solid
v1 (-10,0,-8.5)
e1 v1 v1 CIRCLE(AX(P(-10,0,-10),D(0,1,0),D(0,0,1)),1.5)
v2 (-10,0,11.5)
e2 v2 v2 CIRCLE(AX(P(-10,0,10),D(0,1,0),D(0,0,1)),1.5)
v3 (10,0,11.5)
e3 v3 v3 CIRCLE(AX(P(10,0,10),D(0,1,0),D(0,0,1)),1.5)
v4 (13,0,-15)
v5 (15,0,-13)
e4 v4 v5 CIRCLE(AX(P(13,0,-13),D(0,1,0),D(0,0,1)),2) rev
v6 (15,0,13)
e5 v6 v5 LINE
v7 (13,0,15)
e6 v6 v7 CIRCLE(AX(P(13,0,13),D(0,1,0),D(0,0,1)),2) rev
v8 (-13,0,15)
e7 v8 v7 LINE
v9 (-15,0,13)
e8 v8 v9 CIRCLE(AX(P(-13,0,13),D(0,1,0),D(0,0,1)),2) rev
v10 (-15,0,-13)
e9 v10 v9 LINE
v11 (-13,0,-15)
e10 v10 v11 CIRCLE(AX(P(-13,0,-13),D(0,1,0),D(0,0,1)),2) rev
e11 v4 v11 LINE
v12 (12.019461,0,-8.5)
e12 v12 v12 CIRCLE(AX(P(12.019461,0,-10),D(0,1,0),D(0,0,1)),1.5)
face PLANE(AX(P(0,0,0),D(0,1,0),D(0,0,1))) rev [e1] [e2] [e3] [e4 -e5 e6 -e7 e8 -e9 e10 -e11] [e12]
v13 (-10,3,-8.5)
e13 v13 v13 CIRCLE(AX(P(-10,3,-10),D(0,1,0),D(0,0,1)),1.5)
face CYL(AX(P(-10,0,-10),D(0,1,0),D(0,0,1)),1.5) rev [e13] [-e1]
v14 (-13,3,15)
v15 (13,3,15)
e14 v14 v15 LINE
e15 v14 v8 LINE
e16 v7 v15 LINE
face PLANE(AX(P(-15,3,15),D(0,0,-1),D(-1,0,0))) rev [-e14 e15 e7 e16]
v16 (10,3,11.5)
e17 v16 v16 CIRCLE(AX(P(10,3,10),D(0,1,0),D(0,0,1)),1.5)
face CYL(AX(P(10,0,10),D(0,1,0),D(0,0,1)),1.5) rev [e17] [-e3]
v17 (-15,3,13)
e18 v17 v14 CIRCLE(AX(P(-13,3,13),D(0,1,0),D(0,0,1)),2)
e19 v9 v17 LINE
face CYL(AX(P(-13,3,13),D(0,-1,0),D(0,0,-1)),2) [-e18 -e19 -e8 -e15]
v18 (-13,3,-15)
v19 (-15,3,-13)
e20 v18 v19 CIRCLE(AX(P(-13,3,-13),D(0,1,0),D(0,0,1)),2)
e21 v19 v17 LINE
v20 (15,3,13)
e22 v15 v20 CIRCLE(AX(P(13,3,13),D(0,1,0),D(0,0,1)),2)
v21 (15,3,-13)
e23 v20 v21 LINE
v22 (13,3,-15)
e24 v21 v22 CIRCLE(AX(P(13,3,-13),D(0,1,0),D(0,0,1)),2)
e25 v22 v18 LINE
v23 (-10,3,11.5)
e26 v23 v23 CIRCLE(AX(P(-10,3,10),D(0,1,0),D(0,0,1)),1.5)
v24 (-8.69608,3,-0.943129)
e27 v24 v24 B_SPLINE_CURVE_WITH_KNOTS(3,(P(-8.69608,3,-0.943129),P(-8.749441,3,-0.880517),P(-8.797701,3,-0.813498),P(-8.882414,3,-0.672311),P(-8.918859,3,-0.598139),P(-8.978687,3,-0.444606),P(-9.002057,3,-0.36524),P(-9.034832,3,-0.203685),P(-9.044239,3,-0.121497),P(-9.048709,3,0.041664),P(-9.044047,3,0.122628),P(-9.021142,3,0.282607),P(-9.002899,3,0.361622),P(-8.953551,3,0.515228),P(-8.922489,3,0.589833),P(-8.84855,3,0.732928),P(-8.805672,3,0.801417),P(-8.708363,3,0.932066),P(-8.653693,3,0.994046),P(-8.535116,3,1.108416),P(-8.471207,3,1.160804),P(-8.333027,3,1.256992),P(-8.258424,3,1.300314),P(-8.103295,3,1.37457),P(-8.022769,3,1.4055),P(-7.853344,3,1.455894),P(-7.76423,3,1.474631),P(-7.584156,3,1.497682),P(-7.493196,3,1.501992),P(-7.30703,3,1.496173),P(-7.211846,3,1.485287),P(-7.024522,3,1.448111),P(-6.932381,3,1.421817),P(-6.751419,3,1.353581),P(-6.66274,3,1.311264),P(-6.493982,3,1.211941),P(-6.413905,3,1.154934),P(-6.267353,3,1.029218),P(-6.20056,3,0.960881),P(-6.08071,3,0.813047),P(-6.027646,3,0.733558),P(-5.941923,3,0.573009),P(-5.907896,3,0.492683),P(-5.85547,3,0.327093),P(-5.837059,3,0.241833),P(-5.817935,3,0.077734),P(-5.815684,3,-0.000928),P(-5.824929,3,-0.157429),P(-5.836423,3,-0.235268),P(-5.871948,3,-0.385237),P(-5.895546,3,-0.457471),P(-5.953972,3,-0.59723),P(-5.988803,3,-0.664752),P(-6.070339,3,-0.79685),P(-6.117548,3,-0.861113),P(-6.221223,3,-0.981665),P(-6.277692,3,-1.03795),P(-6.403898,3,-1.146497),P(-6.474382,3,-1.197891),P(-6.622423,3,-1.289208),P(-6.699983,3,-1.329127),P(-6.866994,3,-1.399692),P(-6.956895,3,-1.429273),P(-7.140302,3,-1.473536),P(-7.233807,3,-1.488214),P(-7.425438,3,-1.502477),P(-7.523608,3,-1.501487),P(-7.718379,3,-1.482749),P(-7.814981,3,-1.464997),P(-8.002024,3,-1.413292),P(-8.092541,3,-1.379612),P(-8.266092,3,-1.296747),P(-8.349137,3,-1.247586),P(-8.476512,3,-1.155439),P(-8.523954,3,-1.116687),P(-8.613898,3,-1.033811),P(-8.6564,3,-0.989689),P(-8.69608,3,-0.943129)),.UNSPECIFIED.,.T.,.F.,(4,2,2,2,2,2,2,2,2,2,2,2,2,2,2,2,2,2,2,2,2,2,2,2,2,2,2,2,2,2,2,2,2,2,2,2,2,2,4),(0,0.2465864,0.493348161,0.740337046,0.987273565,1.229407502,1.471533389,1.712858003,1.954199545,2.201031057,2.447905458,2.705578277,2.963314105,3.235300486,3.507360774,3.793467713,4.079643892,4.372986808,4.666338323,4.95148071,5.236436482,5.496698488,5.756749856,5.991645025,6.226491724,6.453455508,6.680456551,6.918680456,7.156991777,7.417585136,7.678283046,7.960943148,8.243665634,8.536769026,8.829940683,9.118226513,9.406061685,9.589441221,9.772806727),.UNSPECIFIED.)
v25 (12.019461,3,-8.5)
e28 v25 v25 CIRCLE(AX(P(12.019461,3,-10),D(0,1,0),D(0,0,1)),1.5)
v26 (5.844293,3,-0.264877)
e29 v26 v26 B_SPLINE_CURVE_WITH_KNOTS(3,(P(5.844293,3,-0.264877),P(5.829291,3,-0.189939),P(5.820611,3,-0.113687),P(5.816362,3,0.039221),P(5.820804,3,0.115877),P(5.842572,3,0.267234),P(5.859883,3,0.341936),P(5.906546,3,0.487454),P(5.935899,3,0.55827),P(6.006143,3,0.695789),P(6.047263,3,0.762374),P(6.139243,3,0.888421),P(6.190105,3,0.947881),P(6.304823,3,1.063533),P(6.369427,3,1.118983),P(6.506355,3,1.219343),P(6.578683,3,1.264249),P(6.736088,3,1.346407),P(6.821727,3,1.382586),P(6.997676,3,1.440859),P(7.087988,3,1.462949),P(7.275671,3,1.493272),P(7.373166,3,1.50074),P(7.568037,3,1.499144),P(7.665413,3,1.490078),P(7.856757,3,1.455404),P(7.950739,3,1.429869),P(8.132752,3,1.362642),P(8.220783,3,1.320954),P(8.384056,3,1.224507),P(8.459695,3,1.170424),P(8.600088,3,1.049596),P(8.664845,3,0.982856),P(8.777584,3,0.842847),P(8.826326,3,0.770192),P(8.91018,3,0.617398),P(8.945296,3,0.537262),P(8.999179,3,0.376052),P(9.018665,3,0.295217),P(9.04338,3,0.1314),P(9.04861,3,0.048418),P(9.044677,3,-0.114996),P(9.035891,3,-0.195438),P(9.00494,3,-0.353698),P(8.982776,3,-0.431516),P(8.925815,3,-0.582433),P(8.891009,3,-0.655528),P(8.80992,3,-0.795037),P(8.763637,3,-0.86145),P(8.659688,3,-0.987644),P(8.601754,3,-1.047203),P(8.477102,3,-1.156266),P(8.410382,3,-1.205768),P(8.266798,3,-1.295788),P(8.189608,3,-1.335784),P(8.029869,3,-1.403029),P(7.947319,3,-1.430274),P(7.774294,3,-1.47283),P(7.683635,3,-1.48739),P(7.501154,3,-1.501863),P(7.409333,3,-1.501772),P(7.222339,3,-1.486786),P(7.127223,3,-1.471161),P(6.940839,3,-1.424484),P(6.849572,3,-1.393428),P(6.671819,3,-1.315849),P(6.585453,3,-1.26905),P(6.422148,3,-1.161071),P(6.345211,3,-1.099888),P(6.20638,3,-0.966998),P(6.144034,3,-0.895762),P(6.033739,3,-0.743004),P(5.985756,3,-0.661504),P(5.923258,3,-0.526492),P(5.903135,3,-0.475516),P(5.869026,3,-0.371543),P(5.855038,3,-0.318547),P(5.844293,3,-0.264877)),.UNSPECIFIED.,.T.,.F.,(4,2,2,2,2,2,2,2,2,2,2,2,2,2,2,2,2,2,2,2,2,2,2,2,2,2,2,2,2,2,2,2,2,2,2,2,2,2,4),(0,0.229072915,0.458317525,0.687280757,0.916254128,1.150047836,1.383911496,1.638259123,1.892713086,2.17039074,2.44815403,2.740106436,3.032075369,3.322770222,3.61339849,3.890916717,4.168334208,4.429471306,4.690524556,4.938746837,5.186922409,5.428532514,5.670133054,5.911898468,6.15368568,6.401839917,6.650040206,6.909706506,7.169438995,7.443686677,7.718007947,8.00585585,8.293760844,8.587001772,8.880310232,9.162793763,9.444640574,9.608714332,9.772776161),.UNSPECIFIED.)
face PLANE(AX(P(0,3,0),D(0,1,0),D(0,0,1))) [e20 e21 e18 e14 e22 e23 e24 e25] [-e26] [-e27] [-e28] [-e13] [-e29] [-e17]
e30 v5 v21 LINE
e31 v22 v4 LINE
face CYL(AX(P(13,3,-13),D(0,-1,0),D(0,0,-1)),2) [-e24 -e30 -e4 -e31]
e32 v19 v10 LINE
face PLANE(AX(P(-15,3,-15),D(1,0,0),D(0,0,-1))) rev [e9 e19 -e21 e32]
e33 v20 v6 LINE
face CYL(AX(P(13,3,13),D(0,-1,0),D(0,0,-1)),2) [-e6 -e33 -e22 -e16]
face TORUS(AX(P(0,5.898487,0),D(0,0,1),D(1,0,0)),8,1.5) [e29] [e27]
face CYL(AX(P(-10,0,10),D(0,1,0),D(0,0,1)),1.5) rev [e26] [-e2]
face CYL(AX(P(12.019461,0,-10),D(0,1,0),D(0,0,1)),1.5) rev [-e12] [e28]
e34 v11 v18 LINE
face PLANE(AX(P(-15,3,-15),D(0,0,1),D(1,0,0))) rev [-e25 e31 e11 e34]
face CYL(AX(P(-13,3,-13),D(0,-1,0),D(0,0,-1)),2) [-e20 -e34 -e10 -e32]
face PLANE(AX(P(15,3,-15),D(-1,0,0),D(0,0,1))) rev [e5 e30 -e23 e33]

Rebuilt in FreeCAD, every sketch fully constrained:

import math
import FreeCAD as App
import Part
import Sketcher

V = App.Vector
Q = App.Units.Quantity


def edges_at(feature, points):
    """Names of the edges that pass closest to the given points."""
    edges = feature.Shape.Edges
    near = lambda p: min(range(len(edges)), key=lambda i: edges[i].distToShape(Part.Vertex(*p))[0])
    return sorted({f"Edge{near(p) + 1}" for p in points})

doc = App.newDocument("Part")
body = doc.addObject("PartDesign::Body", "Body")

sketch1 = body.newObject("Sketcher::SketchObject", "Sketch")
sketch1.AttachmentSupport = (doc.getObject("XZ_Plane"), [""])
sketch1.MapMode = "FlatFace"
sketch1.addGeometry([
    Part.LineSegment(V(-15, -15, 0), V(-15, 15, 0)),
    Part.LineSegment(V(-15, 15, 0), V(15, 15, 0)),
    Part.LineSegment(V(15, 15, 0), V(15, -15, 0)),
    Part.LineSegment(V(15, -15, 0), V(-15, -15, 0)),
], False)
sketch1.addConstraint([
    Sketcher.Constraint("Coincident", 0, 2, 1, 1),
    Sketcher.Constraint("Coincident", 1, 2, 2, 1),
    Sketcher.Constraint("Coincident", 2, 2, 3, 1),
    Sketcher.Constraint("Coincident", 3, 2, 0, 1),
    Sketcher.Constraint("Vertical", 0),
    Sketcher.Constraint("Horizontal", 1),
    Sketcher.Constraint("Vertical", 2),
    Sketcher.Constraint("Horizontal", 3),
    Sketcher.Constraint("Symmetric", 0, 2, 2, 2, -1, 1),
    Sketcher.Constraint("Equal", 3, 0),
    Sketcher.Constraint("DistanceX", 1, 1, 1, 2, Q("30 mm")),
])
pad1 = body.newObject("PartDesign::Pad", "Pad")
pad1.Profile = sketch1
pad1.Length = 3
pad1.Reversed = True

sketch2 = body.newObject("Sketcher::SketchObject", "Sketch001")
sketch2.Placement = App.Placement(V(6.607921, 1.389009, 0), App.Rotation(V(0.825990073, -0.563684663, 0), V(0, 0, -1), V(0.563684663, 0.825990073, 0), "ZXY"))
sketch2.addGeometry(Part.Circle(V(0, 0, 0), V(0, 0, 1), 1.5), False)
sketch2.addConstraint([
    Sketcher.Constraint("Coincident", 0, 3, -1, 1),
    Sketcher.Constraint("Diameter", 0, Q("3 mm")),
])

sketch3 = body.newObject("Sketcher::SketchObject", "Sketch002")
sketch3.AttachmentSupport = (doc.getObject("XY_Plane"), [""])
sketch3.MapMode = "FlatFace"
sketch3.addGeometry(Part.ArcOfCircle(Part.Circle(V(0, 6, 0), V(0, 0, 1), 8), math.radians(-34), math.radians(214)), False)
sketch3.addConstraint([
    Sketcher.Constraint("Symmetric", 0, 1, 0, 2, -2),
    Sketcher.Constraint("Radius", 0, Q("8 mm")),
    Sketcher.Constraint("DistanceX", -1, 1, 0, 1, Q("6.607921 mm")),
    Sketcher.Constraint("DistanceY", -1, 1, 0, 1, Q("1.389009 mm")),
])
doc.recompute()

additivepipe = body.newObject("PartDesign::AdditivePipe", "AdditivePipe")
additivepipe.Profile = sketch2
additivepipe.Spine = (sketch3, ["Edge1"])

sketch4 = body.newObject("Sketcher::SketchObject", "Sketch003")
sketch4.AttachmentSupport = (doc.getObject("XZ_Plane"), [""])
sketch4.MapMode = "FlatFace"
sketch4.AttachmentOffset = App.Placement(V(0, 0, -3), App.Rotation())
sketch4.addGeometry([
    Part.Circle(V(-10, -10, 0), V(0, 0, 1), 1.5),
    Part.Circle(V(12, -10, 0), V(0, 0, 1), 1.5),
    Part.Circle(V(10, 10, 0), V(0, 0, 1), 1.5),
    Part.Circle(V(-10, 10, 0), V(0, 0, 1), 1.5),
], False)
sketch4.addConstraint([
    Sketcher.Constraint("Equal", 0, 1),
    Sketcher.Constraint("Equal", 1, 2),
    Sketcher.Constraint("Equal", 2, 3),
    Sketcher.Constraint("Symmetric", 0, 3, 2, 3, -1, 1),
    Sketcher.Constraint("Symmetric", 2, 3, 3, 3, -2),
    Sketcher.Constraint("Horizontal", 0, 3, 1, 3),
    Sketcher.Constraint("Diameter", 0, Q("3 mm")),
    Sketcher.Constraint("DistanceX", 0, 3, -1, 1, Q("10 mm")),
    Sketcher.Constraint("DistanceY", 0, 3, -1, 1, Q("10 mm")),
    Sketcher.Constraint("DistanceX", -1, 1, 1, 3, Q("12.019461 mm")),
])
pocket1 = body.newObject("PartDesign::Pocket", "Pocket")
pocket1.Profile = sketch4
pocket1.Length = 3
pocket1.Reversed = True
doc.recompute()

fillet = body.newObject("PartDesign::Fillet", "Fillet")
fillet.Base = (pocket1, edges_at(pocket1, [
    (15, 1.5, 15),
    (-15, 1.5, 15),
    (-15, 1.5, -15),
    (15, 1.5, -15),
]))
fillet.Radius = 2

doc.recompute()
